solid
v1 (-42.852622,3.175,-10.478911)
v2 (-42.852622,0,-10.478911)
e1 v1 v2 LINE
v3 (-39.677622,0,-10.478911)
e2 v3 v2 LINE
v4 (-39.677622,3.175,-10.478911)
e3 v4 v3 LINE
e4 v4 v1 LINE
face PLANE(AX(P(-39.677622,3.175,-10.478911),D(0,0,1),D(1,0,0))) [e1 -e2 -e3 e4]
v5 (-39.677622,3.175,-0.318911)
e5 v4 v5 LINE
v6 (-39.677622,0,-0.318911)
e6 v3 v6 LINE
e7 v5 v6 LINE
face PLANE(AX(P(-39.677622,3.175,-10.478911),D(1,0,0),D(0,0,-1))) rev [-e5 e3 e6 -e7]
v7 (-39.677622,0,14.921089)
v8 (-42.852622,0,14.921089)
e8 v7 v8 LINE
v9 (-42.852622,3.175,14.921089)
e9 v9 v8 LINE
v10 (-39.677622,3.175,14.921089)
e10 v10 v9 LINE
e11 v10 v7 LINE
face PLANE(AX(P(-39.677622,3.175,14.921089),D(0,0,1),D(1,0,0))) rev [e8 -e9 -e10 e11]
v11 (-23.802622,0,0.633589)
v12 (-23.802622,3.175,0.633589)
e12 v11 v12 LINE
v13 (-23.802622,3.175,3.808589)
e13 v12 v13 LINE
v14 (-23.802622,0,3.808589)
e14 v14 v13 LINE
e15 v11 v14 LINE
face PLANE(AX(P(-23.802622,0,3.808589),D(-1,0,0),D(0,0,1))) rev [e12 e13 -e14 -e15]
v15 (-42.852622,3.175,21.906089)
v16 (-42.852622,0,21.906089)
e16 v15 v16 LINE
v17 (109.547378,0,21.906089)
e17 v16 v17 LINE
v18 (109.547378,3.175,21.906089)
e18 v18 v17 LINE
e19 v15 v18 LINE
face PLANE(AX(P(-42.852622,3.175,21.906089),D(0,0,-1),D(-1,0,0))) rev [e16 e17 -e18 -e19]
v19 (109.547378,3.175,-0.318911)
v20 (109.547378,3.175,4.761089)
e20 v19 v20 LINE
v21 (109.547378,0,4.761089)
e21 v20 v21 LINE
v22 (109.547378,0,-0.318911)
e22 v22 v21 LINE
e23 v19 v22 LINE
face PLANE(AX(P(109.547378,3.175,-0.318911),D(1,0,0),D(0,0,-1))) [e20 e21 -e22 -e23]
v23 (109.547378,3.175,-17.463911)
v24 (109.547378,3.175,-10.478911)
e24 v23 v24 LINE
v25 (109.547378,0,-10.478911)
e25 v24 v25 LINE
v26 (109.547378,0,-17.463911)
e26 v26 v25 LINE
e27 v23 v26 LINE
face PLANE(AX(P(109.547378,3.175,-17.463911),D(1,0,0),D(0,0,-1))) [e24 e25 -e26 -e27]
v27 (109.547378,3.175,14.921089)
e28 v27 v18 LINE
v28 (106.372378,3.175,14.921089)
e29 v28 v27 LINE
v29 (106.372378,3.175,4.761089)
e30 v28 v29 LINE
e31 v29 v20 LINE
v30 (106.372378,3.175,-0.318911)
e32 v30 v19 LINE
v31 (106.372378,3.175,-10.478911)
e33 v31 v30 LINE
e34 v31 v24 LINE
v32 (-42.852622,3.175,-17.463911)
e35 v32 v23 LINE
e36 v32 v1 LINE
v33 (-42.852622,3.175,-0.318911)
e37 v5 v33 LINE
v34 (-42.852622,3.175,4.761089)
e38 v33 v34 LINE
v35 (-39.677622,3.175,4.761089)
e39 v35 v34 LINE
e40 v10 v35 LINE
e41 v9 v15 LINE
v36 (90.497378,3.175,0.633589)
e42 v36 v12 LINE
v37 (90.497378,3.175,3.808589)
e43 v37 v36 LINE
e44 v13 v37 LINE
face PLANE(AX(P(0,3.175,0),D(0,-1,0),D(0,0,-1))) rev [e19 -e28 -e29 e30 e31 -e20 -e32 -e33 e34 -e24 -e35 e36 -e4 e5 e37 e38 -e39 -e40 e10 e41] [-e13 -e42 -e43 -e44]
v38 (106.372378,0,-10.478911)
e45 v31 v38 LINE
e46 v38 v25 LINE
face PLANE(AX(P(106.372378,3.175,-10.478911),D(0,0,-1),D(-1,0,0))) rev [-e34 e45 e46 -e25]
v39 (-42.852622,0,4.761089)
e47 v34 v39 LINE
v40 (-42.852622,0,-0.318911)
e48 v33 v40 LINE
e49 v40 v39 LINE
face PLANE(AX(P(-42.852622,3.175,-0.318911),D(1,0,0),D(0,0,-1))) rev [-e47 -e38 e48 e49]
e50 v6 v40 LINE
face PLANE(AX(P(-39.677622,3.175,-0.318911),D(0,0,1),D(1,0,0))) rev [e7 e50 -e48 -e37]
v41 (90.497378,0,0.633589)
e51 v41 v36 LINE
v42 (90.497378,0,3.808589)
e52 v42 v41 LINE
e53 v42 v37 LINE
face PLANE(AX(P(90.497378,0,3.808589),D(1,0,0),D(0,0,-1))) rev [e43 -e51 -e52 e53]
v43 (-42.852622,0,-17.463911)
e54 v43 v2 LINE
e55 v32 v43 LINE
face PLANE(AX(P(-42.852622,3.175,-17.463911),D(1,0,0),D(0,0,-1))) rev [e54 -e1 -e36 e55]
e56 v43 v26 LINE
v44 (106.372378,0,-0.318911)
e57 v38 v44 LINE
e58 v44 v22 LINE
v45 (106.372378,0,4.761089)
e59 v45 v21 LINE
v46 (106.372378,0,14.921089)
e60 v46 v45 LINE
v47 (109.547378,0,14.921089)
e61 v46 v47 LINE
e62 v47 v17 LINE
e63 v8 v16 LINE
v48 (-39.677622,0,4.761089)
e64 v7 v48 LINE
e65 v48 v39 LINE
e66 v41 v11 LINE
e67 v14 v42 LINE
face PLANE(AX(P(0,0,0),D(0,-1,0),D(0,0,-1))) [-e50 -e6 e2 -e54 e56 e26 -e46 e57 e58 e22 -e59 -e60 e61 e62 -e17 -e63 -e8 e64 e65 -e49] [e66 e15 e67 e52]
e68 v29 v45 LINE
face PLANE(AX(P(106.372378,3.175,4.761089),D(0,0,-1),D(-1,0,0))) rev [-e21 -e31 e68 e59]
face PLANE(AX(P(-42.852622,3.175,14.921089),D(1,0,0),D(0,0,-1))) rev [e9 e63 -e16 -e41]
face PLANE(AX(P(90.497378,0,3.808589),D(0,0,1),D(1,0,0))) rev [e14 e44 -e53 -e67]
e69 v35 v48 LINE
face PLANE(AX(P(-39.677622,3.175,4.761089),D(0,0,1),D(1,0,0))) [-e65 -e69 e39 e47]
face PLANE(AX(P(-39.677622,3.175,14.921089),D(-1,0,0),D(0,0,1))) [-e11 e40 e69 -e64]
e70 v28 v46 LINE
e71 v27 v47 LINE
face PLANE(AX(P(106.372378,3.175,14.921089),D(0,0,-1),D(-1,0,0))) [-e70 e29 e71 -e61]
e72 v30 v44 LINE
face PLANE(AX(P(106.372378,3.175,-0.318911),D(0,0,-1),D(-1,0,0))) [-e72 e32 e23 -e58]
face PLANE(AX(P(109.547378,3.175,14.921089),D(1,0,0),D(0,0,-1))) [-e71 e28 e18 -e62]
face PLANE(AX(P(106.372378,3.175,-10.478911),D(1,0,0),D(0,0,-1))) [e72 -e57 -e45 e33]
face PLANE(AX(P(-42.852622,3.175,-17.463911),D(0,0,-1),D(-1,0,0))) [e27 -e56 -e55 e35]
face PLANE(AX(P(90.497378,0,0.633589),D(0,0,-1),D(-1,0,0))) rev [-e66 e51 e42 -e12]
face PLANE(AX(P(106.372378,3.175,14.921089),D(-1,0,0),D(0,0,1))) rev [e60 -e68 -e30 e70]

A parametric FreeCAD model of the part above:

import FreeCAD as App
import Part
import Sketcher

V = App.Vector
Q = App.Units.Quantity

doc = App.newDocument("Part")
body = doc.addObject("PartDesign::Body", "Body")

sketch1 = body.newObject("Sketcher::SketchObject", "Sketch")
sketch1.AttachmentSupport = (doc.getObject("XZ_Plane"), [""])
sketch1.MapMode = "FlatFace"
sketch1.addGeometry([
    Part.LineSegment(V(109.547378, -17.463911, 0), V(-42.852622, -17.463911, 0)),
    Part.LineSegment(V(-42.852622, -17.463911, 0), V(-42.852622, -10.478911, 0)),
    Part.LineSegment(V(-42.852622, -10.478911, 0), V(-39.677622, -10.478911, 0)),
    Part.LineSegment(V(-39.677622, -10.478911, 0), V(-39.677622, -0.318911, 0)),
    Part.LineSegment(V(-39.677622, -0.318911, 0), V(-42.852622, -0.318911, 0)),
    Part.LineSegment(V(-42.852622, -0.318911, 0), V(-42.852622, 4.761089, 0)),
    Part.LineSegment(V(-42.852622, 4.761089, 0), V(-39.677622, 4.761089, 0)),
    Part.LineSegment(V(-39.677622, 4.761089, 0), V(-39.677622, 14.921089, 0)),
    Part.LineSegment(V(-39.677622, 14.921089, 0), V(-42.852622, 14.921089, 0)),
    Part.LineSegment(V(-42.852622, 14.921089, 0), V(-42.852622, 21.906089, 0)),
    Part.LineSegment(V(-42.852622, 21.906089, 0), V(109.547378, 21.906089, 0)),
    Part.LineSegment(V(109.547378, 21.906089, 0), V(109.547378, 14.921089, 0)),
    Part.LineSegment(V(109.547378, 14.921089, 0), V(106.372378, 14.921089, 0)),
    Part.LineSegment(V(106.372378, 14.921089, 0), V(106.372378, 4.761089, 0)),
    Part.LineSegment(V(106.372378, 4.761089, 0), V(109.547378, 4.761089, 0)),
    Part.LineSegment(V(109.547378, 4.761089, 0), V(109.547378, -0.318911, 0)),
    Part.LineSegment(V(109.547378, -0.318911, 0), V(106.372378, -0.318911, 0)),
    Part.LineSegment(V(106.372378, -0.318911, 0), V(106.372378, -10.478911, 0)),
    Part.LineSegment(V(106.372378, -10.478911, 0), V(109.547378, -10.478911, 0)),
    Part.LineSegment(V(109.547378, -10.478911, 0), V(109.547378, -17.463911, 0)),
], False)
sketch1.addConstraint([
    Sketcher.Constraint("Coincident", 0, 2, 1, 1),
    Sketcher.Constraint("Coincident", 1, 2, 2, 1),
    Sketcher.Constraint("Coincident", 2, 2, 3, 1),
    Sketcher.Constraint("Coincident", 3, 2, 4, 1),
    Sketcher.Constraint("Coincident", 4, 2, 5, 1),
    Sketcher.Constraint("Coincident", 5, 2, 6, 1),
    Sketcher.Constraint("Coincident", 6, 2, 7, 1),
    Sketcher.Constraint("Coincident", 7, 2, 8, 1),
    Sketcher.Constraint("Coincident", 8, 2, 9, 1),
    Sketcher.Constraint("Coincident", 9, 2, 10, 1),
    Sketcher.Constraint("Coincident", 10, 2, 11, 1),
    Sketcher.Constraint("Coincident", 11, 2, 12, 1),
    Sketcher.Constraint("Coincident", 12, 2, 13, 1),
    Sketcher.Constraint("Coincident", 13, 2, 14, 1),
    Sketcher.Constraint("Coincident", 14, 2, 15, 1),
    Sketcher.Constraint("Coincident", 15, 2, 16, 1),
    Sketcher.Constraint("Coincident", 16, 2, 17, 1),
    Sketcher.Constraint("Coincident", 17, 2, 18, 1),
    Sketcher.Constraint("Coincident", 18, 2, 19, 1),
    Sketcher.Constraint("Coincident", 19, 2, 0, 1),
    Sketcher.Constraint("Horizontal", 0),
    Sketcher.Constraint("Vertical", 1),
    Sketcher.Constraint("Horizontal", 2),
    Sketcher.Constraint("Vertical", 3),
    Sketcher.Constraint("Horizontal", 4),
    Sketcher.Constraint("Vertical", 5),
    Sketcher.Constraint("Horizontal", 6),
    Sketcher.Constraint("Vertical", 7),
    Sketcher.Constraint("Horizontal", 8),
    Sketcher.Constraint("Vertical", 9),
    Sketcher.Constraint("Horizontal", 10),
    Sketcher.Constraint("Vertical", 11),
    Sketcher.Constraint("Horizontal", 12),
    Sketcher.Constraint("Vertical", 13),
    Sketcher.Constraint("Horizontal", 14),
    Sketcher.Constraint("Vertical", 15),
    Sketcher.Constraint("Horizontal", 16),
    Sketcher.Constraint("Vertical", 17),
    Sketcher.Constraint("Horizontal", 18),
    Sketcher.Constraint("Vertical", 19),
    Sketcher.Constraint("Horizontal", 8, 2, 11, 2),
    Sketcher.Constraint("Horizontal", 6, 2, 13, 2),
    Sketcher.Constraint("Horizontal", 4, 2, 15, 2),
    Sketcher.Constraint("Horizontal", 2, 2, 17, 2),
    Sketcher.Constraint("Vertical", 1, 2, 4, 2),
    Sketcher.Constraint("Vertical", 3, 2, 6, 2),
    Sketcher.Constraint("Vertical", 5, 2, 8, 2),
    Sketcher.Constraint("Vertical", 11, 2, 14, 2),
    Sketcher.Constraint("Vertical", 13, 2, 16, 2),
    Sketcher.Constraint("Vertical", 15, 2, 18, 2),
    Sketcher.Constraint("Equal", 8, 12),
    Sketcher.Constraint("Equal", 3, 7),
    Sketcher.Constraint("Equal", 1, 9),
    Sketcher.Constraint("DistanceX", 0, 2, 0, 1, Q("6 in")),
    Sketcher.Constraint("DistanceY", 3, 1, 3, 2, Q("0.4 in")),
    Sketcher.Constraint("DistanceY", 5, 1, 5, 2, Q("0.2 in")),
    Sketcher.Constraint("DistanceX", 2, 1, 2, 2, Q("0.125 in")),
    Sketcher.Constraint("DistanceY", 1, 1, 1, 2, Q("0.275 in")),
    Sketcher.Constraint("DistanceY", 0, 2, -1, 1, Q("17.463911 mm")),
    Sketcher.Constraint("DistanceX", 0, 2, -1, 1, Q("42.852622 mm")),
])
pad1 = body.newObject("PartDesign::Pad", "Pad")
pad1.Profile = sketch1
pad1.Length = Q("0.125 in")
pad1.Reversed = True

sketch2 = body.newObject("Sketcher::SketchObject", "Sketch001")
sketch2.AttachmentSupport = (doc.getObject("XZ_Plane"), [""])
sketch2.MapMode = "FlatFace"
sketch2.AttachmentOffset = App.Placement(V(0, 0, -0.125 * 25.4), App.Rotation())
sketch2.addGeometry([
    Part.LineSegment(V(-23.802622, 0.633589, 0), V(-23.802622, 3.808589, 0)),
    Part.LineSegment(V(-23.802622, 3.808589, 0), V(90.497378, 3.808589, 0)),
    Part.LineSegment(V(90.497378, 3.808589, 0), V(90.497378, 0.633589, 0)),
    Part.LineSegment(V(90.497378, 0.633589, 0), V(-23.802622, 0.633589, 0)),
], False)
sketch2.addConstraint([
    Sketcher.Constraint("Coincident", 0, 2, 1, 1),
    Sketcher.Constraint("Coincident", 1, 2, 2, 1),
    Sketcher.Constraint("Coincident", 2, 2, 3, 1),
    Sketcher.Constraint("Coincident", 3, 2, 0, 1),
    Sketcher.Constraint("Vertical", 0),
    Sketcher.Constraint("Horizontal", 1),
    Sketcher.Constraint("Vertical", 2),
    Sketcher.Constraint("Horizontal", 3),
    Sketcher.Constraint("DistanceX", 1, 1, 1, 2, Q("4.5 in")),
    Sketcher.Constraint("DistanceY", 0, 1, 0, 2, Q("0.125 in")),
    Sketcher.Constraint("DistanceY", -1, 1, 0, 2, Q("3.808589 mm")),
    Sketcher.Constraint("DistanceX", 0, 2, -1, 1, Q("23.802622 mm")),
])
pocket1 = body.newObject("PartDesign::Pocket", "Pocket")
pocket1.Profile = sketch2
pocket1.Type = "ThroughAll"
pocket1.Reversed = True

doc.recompute()
